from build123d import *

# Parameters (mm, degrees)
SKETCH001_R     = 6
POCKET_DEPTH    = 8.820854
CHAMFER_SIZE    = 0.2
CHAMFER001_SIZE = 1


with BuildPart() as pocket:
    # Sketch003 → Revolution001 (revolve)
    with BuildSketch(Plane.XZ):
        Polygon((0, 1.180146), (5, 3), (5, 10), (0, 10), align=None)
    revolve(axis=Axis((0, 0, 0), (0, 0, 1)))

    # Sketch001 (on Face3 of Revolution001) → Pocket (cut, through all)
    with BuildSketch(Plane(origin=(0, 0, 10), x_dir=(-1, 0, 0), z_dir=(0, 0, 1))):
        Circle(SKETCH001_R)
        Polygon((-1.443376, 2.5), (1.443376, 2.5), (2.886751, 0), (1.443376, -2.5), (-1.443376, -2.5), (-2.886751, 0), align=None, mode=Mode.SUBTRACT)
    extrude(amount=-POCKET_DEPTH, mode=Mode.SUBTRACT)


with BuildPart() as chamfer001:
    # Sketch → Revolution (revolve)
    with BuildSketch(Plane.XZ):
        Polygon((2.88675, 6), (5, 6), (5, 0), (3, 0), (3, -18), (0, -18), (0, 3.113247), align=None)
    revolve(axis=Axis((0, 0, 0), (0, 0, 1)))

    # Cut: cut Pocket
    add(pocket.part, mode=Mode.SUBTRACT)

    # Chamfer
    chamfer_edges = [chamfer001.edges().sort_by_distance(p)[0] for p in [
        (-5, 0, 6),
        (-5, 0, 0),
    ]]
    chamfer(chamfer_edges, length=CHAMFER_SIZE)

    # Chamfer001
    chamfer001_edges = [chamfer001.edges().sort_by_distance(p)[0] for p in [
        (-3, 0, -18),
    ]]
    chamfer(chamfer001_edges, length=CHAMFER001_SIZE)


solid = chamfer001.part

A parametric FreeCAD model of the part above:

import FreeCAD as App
import Part
import Sketcher
from FreeCAD import Vector
Q = App.Units.Quantity


def edges_at(feature, points):
    """Names of the edges that pass closest to the given points."""
    edges = feature.Shape.Edges
    near = lambda p: min(range(len(edges)), key=lambda i: edges[i].distToShape(Part.Vertex(*p))[0])
    return sorted({f"Edge{near(p) + 1}" for p in points})


def add_polygon(sketch, points):
    """Adds a closed chain of lines whose ends are joined by coincident constraints."""
    first, n = sketch.GeometryCount, len(points)
    for a, b in zip(points, points[1:] + points[:1]):
        sketch.addGeometry(Part.LineSegment(App.Vector(*a, 0), App.Vector(*b, 0)), False)
    for i in range(n):
        sketch.addConstraint(Sketcher.Constraint("Coincident", first + i, 2, first + (i + 1) % n, 1))

doc = App.newDocument("Part")
body = doc.addObject("PartDesign::Body", "Body")

sketch1 = doc.addObject("Sketcher::SketchObject", "Sketch")
body.addObject(sketch1)
sketch1.AttachmentSupport = (doc.XZ_Plane, [""])
sketch1.MapMode = "FlatFace"
add_polygon(sketch1, [(0, 1), (5, 3), (5, 10), (0, 10)])
sketch1.addConstraint(Sketcher.Constraint("Vertical", 1))
sketch1.addConstraint(Sketcher.Constraint("Horizontal", 2))
sketch1.addConstraint(Sketcher.Constraint("Vertical", 3))
sketch1.addConstraint(Sketcher.Constraint("PointOnObject", 2, 2, -2))
sketch1.addConstraint(Sketcher.Constraint("DistanceX", 2, 2, 2, 1, Q("5 mm")))
sketch1.addConstraint(Sketcher.Constraint("DistanceY", 1, 1, 1, 2, Q("7 mm")))
sketch1.addConstraint(Sketcher.Constraint("DistanceY", -1, 1, 0, 2, Q("3 mm")))
sketch1.addConstraint(Sketcher.Constraint("Distance", 0, Q("5.32089 mm")))
revolution = doc.addObject("PartDesign::Revolution", "Revolution")
body.addObject(revolution)
revolution.Profile = sketch1
revolution.ReferenceAxis = (sketch1, ["V_Axis"])
revolution.Angle = 360

sketch2 = doc.addObject("Sketcher::SketchObject", "Sketch001")
body.addObject(sketch2)
sketch2.AttachmentSupport = (doc.XY_Plane, [""])
sketch2.MapMode = "FlatFace"
sketch2.AttachmentOffset = App.Placement(Vector(0, 0, 10), App.Rotation())
sketch2.addGeometry(Part.Circle(Vector(0, 0, 0), Vector(0, 0, 1), 6), False)
add_polygon(sketch2, [(2.9, 0), (1.4, -2.5), (-1.4, -2.5), (-2.9, 0), (-1.4, 2.5), (1.4, 2.5)])
sketch2.addConstraint(Sketcher.Constraint("Horizontal", 2))
sketch2.addConstraint(Sketcher.Constraint("Horizontal", 5))
sketch2.addConstraint(Sketcher.Constraint("Coincident", 0, 3, -1, 1))
sketch2.addConstraint(Sketcher.Constraint("Symmetric", 1, 2, 4, 2, -1, 1))
sketch2.addConstraint(Sketcher.Constraint("Symmetric", 3, 2, 6, 2, -1, 1))
sketch2.addConstraint(Sketcher.Constraint("PointOnObject", 3, 2, -1))
sketch2.addConstraint(Sketcher.Constraint("Parallel", 3, 6))
sketch2.addConstraint(Sketcher.Constraint("Vertical", 2, 2, 4, 2))
sketch2.addConstraint(Sketcher.Constraint("Diameter", 0, Q("12 mm")))
sketch2.addConstraint(Sketcher.Constraint("Angle", 1, Q("-119.999988 deg")))
sketch2.addConstraint(Sketcher.Constraint("DistanceY", 2, 2, 4, 2, Q("5 mm")))
sketch2.addConstraint(Sketcher.Constraint("DistanceX", 2, 2, 2, 1, Q("2.886752 mm")))
pocket1 = doc.addObject("PartDesign::Pocket", "Pocket")
body.addObject(pocket1)
pocket1.Profile = sketch2
pocket1.Type = "ThroughAll"
body2 = doc.addObject("PartDesign::Body", "Body001")

sketch3 = doc.addObject("Sketcher::SketchObject", "Sketch002")
body2.addObject(sketch3)
sketch3.AttachmentSupport = (doc.getObject("XZ_Plane001"), [""])
sketch3.MapMode = "FlatFace"
add_polygon(sketch3, [(5, 6), (2.9, 6), (0, 3.1), (0, -18), (3, -18), (3, 0), (5, 0)])
sketch3.addConstraint(Sketcher.Constraint("Horizontal", 0))
sketch3.addConstraint(Sketcher.Constraint("Vertical", 2))
sketch3.addConstraint(Sketcher.Constraint("Horizontal", 3))
sketch3.addConstraint(Sketcher.Constraint("Vertical", 4))
sketch3.addConstraint(Sketcher.Constraint("Horizontal", 5))
sketch3.addConstraint(Sketcher.Constraint("Vertical", 6))
sketch3.addConstraint(Sketcher.Constraint("PointOnObject", 1, 2, -2))
sketch3.addConstraint(Sketcher.Constraint("PointOnObject", 4, 2, -1))
sketch3.addConstraint(Sketcher.Constraint("DistanceX", 3, 1, 3, 2, Q("3 mm")))
sketch3.addConstraint(Sketcher.Constraint("DistanceX", 5, 1, 5, 2, Q("2 mm")))
sketch3.addConstraint(Sketcher.Constraint("DistanceY", 4, 1, 4, 2, Q("18 mm")))
sketch3.addConstraint(Sketcher.Constraint("DistanceY", 6, 1, 6, 2, Q("6 mm")))
sketch3.addConstraint(Sketcher.Constraint("DistanceX", 0, 2, 0, 1, Q("2.11325 mm")))
sketch3.addConstraint(Sketcher.Constraint("DistanceY", 2, 2, 2, 1, Q("21.113247 mm")))
revolution2 = doc.addObject("PartDesign::Revolution", "Revolution001")
body2.addObject(revolution2)
revolution2.Profile = sketch3
revolution2.ReferenceAxis = (sketch3, ["V_Axis"])
revolution2.Angle = 360
doc.recompute()

boolean = doc.addObject("PartDesign::Boolean", "Boolean")
body2.addObject(boolean)
boolean.Type = "Cut"
boolean.addObjects([body])
doc.recompute()

chamfer = doc.addObject("PartDesign::Chamfer", "Chamfer")
body2.addObject(chamfer)
chamfer.Base = (boolean, edges_at(boolean, [(-5, 0, 6), (-5, 0, 0)]))
chamfer.Size = 0.2
doc.recompute()

chamfer2 = doc.addObject("PartDesign::Chamfer", "Chamfer001")
body2.addObject(chamfer2)
chamfer2.Base = (chamfer, edges_at(chamfer, [(-3, 0, -18)]))
chamfer2.Size = 1

doc.recompute()
